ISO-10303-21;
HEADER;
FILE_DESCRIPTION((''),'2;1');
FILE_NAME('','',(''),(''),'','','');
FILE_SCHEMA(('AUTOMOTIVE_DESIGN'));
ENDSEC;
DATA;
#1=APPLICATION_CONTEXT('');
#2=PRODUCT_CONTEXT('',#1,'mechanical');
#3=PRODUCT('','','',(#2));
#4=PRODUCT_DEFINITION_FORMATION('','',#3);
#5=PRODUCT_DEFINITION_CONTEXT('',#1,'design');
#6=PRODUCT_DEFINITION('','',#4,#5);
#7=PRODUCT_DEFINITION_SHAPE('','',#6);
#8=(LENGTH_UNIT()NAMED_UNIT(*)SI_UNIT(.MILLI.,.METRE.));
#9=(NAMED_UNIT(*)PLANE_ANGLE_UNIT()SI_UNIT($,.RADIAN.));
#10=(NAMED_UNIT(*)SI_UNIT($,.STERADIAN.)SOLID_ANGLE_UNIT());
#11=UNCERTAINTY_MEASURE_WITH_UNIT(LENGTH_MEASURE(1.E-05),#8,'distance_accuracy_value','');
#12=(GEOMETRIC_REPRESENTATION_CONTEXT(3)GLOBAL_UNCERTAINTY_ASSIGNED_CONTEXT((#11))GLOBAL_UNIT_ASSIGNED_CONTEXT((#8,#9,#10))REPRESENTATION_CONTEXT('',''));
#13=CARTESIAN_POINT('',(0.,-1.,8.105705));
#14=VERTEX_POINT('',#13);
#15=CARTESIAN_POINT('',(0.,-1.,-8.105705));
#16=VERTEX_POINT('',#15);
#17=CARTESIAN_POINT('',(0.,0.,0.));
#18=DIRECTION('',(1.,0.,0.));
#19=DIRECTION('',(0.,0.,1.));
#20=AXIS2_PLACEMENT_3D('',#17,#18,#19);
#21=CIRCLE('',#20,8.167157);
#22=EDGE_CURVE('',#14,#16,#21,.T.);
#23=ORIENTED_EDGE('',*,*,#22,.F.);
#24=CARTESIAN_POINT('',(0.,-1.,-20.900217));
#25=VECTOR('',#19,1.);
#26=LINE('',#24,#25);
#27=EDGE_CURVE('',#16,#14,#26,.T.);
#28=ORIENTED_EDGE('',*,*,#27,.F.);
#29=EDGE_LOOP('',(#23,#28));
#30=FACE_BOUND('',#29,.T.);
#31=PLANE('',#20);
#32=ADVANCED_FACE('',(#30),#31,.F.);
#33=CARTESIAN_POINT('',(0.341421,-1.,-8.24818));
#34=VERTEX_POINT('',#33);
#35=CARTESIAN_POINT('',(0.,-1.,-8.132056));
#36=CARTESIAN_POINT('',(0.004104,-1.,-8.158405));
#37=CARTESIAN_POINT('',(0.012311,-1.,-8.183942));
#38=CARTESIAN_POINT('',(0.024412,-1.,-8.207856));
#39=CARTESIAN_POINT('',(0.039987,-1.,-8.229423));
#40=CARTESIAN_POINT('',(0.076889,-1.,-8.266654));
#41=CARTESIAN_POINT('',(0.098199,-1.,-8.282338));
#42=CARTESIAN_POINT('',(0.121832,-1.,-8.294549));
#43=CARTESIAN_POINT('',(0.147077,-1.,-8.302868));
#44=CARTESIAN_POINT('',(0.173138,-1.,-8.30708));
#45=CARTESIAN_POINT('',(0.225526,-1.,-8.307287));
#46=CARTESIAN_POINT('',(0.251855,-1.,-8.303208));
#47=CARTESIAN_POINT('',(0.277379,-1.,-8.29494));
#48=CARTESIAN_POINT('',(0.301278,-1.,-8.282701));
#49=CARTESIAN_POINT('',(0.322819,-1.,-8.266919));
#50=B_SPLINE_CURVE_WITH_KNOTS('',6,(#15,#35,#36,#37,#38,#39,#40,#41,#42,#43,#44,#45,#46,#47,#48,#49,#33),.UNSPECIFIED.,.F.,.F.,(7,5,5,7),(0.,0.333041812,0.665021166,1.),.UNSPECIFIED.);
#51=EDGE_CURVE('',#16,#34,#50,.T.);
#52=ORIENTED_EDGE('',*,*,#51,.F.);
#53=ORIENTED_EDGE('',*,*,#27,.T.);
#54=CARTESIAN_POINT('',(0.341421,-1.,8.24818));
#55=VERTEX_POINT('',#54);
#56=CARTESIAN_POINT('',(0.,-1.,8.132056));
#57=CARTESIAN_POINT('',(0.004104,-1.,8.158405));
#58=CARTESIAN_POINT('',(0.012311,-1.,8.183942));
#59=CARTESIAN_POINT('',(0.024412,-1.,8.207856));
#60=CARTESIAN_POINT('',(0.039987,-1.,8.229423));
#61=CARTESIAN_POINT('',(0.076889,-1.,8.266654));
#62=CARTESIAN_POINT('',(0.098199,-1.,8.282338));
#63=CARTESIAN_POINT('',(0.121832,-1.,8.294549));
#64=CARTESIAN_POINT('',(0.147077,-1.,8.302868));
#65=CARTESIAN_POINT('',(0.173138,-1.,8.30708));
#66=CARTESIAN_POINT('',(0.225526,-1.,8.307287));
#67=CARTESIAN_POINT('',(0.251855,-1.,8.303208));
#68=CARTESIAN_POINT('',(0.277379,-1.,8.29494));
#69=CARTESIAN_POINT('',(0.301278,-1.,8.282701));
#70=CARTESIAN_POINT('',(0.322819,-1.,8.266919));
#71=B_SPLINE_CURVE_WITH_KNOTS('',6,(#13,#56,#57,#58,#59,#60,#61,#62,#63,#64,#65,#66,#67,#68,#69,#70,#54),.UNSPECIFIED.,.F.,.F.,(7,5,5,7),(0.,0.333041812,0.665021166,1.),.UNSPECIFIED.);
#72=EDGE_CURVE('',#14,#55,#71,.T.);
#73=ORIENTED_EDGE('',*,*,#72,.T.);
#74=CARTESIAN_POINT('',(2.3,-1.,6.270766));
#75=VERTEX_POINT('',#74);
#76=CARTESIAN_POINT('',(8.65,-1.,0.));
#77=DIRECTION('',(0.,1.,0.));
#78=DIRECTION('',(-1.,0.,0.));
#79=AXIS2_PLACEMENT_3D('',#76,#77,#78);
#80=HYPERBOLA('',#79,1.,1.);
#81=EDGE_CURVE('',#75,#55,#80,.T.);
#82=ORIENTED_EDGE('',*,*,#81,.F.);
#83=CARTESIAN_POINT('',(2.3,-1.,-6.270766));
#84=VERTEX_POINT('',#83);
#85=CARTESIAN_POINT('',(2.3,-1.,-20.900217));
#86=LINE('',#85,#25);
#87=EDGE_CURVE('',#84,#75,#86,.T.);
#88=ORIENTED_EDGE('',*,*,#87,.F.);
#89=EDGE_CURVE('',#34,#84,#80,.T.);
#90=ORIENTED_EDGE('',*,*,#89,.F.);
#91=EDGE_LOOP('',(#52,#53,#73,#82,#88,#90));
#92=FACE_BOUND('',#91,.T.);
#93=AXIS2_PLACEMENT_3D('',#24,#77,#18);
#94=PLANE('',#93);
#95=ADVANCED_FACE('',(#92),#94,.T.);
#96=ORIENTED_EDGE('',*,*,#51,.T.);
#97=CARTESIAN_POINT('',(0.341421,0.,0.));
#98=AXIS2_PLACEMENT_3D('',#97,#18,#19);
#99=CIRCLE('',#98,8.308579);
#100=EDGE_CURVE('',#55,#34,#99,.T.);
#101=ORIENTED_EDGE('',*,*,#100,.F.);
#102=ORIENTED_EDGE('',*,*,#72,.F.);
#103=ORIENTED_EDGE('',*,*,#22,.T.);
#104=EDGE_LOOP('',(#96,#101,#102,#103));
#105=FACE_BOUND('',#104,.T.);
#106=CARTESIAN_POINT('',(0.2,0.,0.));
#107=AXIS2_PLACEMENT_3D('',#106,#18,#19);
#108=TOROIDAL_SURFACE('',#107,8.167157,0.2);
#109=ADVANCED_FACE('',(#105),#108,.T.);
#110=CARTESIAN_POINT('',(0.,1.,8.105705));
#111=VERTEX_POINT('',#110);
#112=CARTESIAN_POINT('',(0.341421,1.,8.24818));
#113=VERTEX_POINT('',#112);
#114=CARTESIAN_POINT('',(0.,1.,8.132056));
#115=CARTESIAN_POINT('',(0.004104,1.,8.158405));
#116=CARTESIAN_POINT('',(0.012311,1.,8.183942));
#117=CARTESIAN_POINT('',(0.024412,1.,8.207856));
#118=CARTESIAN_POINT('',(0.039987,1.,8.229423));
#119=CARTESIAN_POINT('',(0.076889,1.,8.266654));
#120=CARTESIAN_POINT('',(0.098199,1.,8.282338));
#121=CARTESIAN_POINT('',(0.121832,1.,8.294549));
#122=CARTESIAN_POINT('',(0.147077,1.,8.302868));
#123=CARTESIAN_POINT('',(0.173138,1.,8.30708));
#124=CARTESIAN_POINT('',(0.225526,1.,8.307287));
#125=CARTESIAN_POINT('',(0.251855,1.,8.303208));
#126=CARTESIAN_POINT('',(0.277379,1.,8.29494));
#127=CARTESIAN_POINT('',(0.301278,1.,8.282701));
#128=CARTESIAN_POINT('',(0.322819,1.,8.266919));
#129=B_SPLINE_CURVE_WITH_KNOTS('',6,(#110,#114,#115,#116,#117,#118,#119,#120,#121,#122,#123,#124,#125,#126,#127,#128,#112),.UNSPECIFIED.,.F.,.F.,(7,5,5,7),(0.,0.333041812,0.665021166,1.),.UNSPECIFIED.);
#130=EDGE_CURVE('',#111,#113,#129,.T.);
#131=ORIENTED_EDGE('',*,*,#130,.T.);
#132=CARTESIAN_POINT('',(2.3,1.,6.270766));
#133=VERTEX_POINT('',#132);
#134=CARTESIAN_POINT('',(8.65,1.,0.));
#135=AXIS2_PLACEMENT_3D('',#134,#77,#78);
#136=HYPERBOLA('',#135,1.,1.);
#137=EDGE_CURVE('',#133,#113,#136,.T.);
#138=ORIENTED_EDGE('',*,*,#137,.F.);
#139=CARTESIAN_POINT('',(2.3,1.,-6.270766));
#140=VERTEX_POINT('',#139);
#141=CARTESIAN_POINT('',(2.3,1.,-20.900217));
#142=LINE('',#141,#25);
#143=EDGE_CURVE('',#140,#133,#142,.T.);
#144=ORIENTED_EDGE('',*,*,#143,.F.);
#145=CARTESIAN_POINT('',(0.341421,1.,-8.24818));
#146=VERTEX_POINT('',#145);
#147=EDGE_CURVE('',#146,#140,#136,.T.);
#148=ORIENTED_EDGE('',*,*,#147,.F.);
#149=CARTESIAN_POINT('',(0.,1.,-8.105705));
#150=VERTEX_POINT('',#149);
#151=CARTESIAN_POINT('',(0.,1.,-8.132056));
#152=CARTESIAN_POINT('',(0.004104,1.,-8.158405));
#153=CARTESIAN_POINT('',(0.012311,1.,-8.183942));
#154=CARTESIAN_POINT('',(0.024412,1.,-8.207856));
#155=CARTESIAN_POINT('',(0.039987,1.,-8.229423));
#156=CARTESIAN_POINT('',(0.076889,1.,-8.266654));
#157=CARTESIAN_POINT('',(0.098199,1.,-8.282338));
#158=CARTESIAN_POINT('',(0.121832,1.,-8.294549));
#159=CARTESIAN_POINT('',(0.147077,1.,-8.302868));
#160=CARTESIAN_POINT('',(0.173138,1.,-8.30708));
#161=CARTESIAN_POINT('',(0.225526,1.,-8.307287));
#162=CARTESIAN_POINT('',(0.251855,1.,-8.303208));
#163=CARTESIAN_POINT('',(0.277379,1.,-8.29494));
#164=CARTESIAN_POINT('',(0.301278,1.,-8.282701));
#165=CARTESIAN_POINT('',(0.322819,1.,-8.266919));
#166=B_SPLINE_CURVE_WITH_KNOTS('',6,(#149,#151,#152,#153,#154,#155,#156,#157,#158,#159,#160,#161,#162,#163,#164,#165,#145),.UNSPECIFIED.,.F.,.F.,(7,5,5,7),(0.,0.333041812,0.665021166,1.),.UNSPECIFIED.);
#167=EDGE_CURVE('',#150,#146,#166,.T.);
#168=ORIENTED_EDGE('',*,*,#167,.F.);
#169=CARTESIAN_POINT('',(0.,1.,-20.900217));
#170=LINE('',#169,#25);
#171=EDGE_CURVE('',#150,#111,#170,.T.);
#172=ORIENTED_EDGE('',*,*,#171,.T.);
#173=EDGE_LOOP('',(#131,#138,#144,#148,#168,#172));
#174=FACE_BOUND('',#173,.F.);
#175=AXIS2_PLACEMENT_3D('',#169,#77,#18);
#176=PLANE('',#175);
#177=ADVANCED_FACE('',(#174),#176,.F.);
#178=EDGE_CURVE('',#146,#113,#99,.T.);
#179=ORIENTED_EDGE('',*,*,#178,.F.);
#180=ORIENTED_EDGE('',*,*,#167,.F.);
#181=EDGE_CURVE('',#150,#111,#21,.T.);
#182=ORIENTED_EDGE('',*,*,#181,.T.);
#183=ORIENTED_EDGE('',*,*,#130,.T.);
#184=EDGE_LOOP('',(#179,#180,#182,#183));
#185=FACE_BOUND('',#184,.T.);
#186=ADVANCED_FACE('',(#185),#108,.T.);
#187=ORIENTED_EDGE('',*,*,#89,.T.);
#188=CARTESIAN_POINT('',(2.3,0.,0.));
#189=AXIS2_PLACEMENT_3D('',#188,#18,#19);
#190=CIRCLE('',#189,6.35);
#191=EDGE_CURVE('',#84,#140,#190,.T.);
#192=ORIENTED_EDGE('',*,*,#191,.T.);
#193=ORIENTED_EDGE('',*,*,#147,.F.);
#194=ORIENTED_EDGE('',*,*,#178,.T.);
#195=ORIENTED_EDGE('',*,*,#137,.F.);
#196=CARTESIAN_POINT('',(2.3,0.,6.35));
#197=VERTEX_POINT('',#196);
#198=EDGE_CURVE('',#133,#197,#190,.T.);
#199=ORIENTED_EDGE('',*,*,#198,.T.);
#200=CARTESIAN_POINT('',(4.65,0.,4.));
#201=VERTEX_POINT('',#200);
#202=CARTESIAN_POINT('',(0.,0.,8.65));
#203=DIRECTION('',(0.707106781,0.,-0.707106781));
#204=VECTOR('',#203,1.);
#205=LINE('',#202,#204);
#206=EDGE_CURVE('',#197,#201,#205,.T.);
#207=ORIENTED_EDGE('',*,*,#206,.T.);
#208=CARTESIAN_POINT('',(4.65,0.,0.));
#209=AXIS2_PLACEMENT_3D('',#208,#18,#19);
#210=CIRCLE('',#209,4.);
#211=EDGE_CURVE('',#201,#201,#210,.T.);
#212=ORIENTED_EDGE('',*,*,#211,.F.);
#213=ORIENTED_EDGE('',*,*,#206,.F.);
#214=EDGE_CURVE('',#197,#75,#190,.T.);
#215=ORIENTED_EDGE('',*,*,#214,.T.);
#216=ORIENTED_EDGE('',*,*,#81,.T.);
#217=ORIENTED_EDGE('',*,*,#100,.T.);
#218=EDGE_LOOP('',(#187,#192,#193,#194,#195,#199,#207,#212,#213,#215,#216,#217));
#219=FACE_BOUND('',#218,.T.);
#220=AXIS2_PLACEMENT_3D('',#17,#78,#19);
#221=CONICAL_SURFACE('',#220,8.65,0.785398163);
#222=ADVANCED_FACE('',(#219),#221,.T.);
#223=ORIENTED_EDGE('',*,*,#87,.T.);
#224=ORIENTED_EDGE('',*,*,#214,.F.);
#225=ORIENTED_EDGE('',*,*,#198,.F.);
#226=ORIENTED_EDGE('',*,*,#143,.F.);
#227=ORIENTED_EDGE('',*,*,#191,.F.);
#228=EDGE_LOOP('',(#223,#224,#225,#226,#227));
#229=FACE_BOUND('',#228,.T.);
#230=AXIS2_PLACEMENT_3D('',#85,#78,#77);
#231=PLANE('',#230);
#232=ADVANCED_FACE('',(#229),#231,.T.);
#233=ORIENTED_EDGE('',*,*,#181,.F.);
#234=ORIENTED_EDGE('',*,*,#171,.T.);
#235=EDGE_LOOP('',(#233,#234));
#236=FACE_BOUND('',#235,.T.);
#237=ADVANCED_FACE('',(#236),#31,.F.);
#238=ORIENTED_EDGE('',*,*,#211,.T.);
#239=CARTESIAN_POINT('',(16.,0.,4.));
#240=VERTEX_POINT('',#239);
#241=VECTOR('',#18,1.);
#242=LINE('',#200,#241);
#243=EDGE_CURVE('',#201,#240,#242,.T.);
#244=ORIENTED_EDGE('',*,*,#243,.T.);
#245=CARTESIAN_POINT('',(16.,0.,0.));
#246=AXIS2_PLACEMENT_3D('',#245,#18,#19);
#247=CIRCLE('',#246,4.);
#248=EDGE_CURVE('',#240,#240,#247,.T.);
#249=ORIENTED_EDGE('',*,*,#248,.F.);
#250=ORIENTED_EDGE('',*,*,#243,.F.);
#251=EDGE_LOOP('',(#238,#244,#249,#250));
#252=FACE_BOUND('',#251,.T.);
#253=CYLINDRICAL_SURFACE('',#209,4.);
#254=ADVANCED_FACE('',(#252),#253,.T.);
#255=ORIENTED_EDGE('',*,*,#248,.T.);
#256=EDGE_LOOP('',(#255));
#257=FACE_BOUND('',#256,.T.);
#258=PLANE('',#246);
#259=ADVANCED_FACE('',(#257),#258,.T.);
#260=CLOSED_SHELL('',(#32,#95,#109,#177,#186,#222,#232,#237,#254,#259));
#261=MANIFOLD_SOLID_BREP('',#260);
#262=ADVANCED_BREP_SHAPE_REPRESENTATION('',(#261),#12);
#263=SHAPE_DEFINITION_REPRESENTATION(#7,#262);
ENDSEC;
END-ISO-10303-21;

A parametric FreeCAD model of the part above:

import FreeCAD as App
import Part
import Sketcher
Q = App.Units.Quantity


def edges_at(feature, points):
    """Names of the edges that pass closest to the given points."""
    edges = feature.Shape.Edges
    near = lambda p: min(range(len(edges)), key=lambda i: edges[i].distToShape(Part.Vertex(*p))[0])
    return sorted({f"Edge{near(p) + 1}" for p in points})


def add_polygon(sketch, points):
    """Adds a closed chain of lines whose ends are joined by coincident constraints."""
    first, n = sketch.GeometryCount, len(points)
    for a, b in zip(points, points[1:] + points[:1]):
        sketch.addGeometry(Part.LineSegment(App.Vector(*a, 0), App.Vector(*b, 0)), False)
    for i in range(n):
        sketch.addConstraint(Sketcher.Constraint("Coincident", first + i, 2, first + (i + 1) % n, 1))

doc = App.newDocument("Part")
params = doc.addObject("Spreadsheet::Sheet", "Params")
for row, (alias, value) in enumerate([
    ("sketch1_width", "16 mm"),
    ("sketch1_height", "4 mm"),
    ("sketch1_width2", "11.35 mm"),
    ("revolution_angle", "360 deg"),
    ("fillet_radius", "0.2 mm"),
    ("sketch2_height", "2 mm"),
    ("sketch2_width", "2.3 mm"),
], start=1):
    params.set(f"A{row}", alias)
    params.set(f"B{row}", "=" + value)
    params.setAlias(f"B{row}", alias)

body = doc.addObject("PartDesign::Body", "Body")

# Sketch on XY plane
sketch1 = body.newObject("Sketcher::SketchObject", "Sketch")
sketch1.AttachmentSupport = (doc.getObject("XY_Plane"), [""])
sketch1.MapMode = "FlatFace"
add_polygon(sketch1, [(0, 8.7), (0, 0), (16, 0), (16, 4), (4.7, 4)])  # lines 0-4
sketch1.addConstraint([
    Sketcher.Constraint("Vertical", 0),
    Sketcher.Constraint("Horizontal", 1),
    Sketcher.Constraint("Vertical", 2),
    Sketcher.Constraint("Horizontal", 3),
    Sketcher.Constraint("Coincident", 0, 2, -1, 1),
    Sketcher.Constraint("DistanceX", 1, 1, 1, 2, Q("16 mm")),
    Sketcher.Constraint("DistanceY", 2, 1, 2, 2, Q("4 mm")),
    Sketcher.Constraint("Angle", 4, Q("135 deg")),
    Sketcher.Constraint("DistanceX", 3, 2, 3, 1, Q("11.35 mm")),
])
sketch1.setExpression("Constraints[10]", "Params.sketch1_width")
sketch1.setExpression("Constraints[11]", "Params.sketch1_height")
sketch1.setExpression("Constraints[13]", "Params.sketch1_width2")
revolution = body.newObject("PartDesign::Revolution", "Revolution")
revolution.Profile = sketch1
revolution.ReferenceAxis = (sketch1, ["H_Axis"])
revolution.setExpression("Angle", "Params.revolution_angle")
doc.recompute()

fillet = body.newObject("PartDesign::Fillet", "Fillet")
fillet.Base = (revolution, edges_at(revolution, [(0, 0, -8.65)]))
fillet.setExpression("Radius", "Params.fillet_radius")

# Sketch on XY plane
sketch2 = body.newObject("Sketcher::SketchObject", "Sketch001")
sketch2.AttachmentSupport = (doc.getObject("XY_Plane"), [""])
sketch2.MapMode = "FlatFace"
add_polygon(sketch2, [(0, 1), (0, -1), (2.3, -1), (2.3, 1)])  # lines 0-3
sketch2.addConstraint([
    Sketcher.Constraint("Vertical", 0),
    Sketcher.Constraint("Horizontal", 1),
    Sketcher.Constraint("Vertical", 2),
    Sketcher.Constraint("Horizontal", 3),
    Sketcher.Constraint("Symmetric", 0, 2, 3, 2, -1, 1),
    Sketcher.Constraint("DistanceY", 0, 2, 0, 1, Q("2 mm")),
    Sketcher.Constraint("DistanceX", 1, 1, 1, 2, Q("2.3 mm")),
])
sketch2.setExpression("Constraints[9]", "Params.sketch2_height")
sketch2.setExpression("Constraints[10]", "Params.sketch2_width")
pocket1 = body.newObject("PartDesign::Pocket", "Pocket")
pocket1.Profile = sketch2
pocket1.Type = "ThroughAll"
pocket1.Midplane = True

doc.recompute()
